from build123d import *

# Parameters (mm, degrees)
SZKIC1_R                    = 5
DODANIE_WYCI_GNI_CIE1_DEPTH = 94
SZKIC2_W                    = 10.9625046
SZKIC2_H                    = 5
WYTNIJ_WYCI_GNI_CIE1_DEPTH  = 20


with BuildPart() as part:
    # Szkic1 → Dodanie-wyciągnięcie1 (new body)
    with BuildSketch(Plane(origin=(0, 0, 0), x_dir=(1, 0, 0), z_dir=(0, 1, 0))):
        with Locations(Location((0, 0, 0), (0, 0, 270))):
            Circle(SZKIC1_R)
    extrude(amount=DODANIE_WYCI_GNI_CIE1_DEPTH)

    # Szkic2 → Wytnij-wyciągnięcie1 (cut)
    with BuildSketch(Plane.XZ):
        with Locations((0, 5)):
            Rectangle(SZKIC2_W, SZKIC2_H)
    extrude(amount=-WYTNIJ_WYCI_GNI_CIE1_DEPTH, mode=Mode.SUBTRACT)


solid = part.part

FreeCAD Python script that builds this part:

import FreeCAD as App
import Part
import Sketcher
from FreeCAD import Vector
Q = App.Units.Quantity

doc = App.newDocument("Part")
body = doc.addObject("PartDesign::Body", "Body")

sketch1 = body.newObject("Sketcher::SketchObject", "Sketch")
sketch1.AttachmentSupport = (doc.getObject("XZ_Plane"), [""])
sketch1.MapMode = "FlatFace"
sketch1.addGeometry(Part.Circle(Vector(0, 0, 0), Vector(0, 0, 1), 5), False)
sketch1.addConstraint([
    Sketcher.Constraint("Coincident", 0, 3, -1, 1),
    Sketcher.Constraint("Diameter", 0, Q("10 mm")),
])
pad1 = body.newObject("PartDesign::Pad", "Pad")
pad1.Profile = sketch1
pad1.Length = 94
pad1.Reversed = True

sketch2 = body.newObject("Sketcher::SketchObject", "Sketch001")
sketch2.AttachmentSupport = (doc.getObject("XZ_Plane"), [""])
sketch2.MapMode = "FlatFace"
sketch2.addGeometry([
    Part.LineSegment(Vector(-5, 8, 0), Vector(-5, 2, 0)),
    Part.LineSegment(Vector(-5, 2, 0), Vector(5, 2, 0)),
    Part.LineSegment(Vector(5, 2, 0), Vector(5, 8, 0)),
    Part.LineSegment(Vector(5, 8, 0), Vector(-5, 8, 0)),
], False)
sketch2.addConstraint([
    Sketcher.Constraint("Coincident", 0, 2, 1, 1),
    Sketcher.Constraint("Coincident", 1, 2, 2, 1),
    Sketcher.Constraint("Coincident", 2, 2, 3, 1),
    Sketcher.Constraint("Coincident", 3, 2, 0, 1),
    Sketcher.Constraint("Vertical", 0),
    Sketcher.Constraint("Horizontal", 1),
    Sketcher.Constraint("Vertical", 2),
    Sketcher.Constraint("Horizontal", 3),
    Sketcher.Constraint("DistanceY", 0, 2, 0, 1, Q("5 mm")),
    Sketcher.Constraint("DistanceY", -1, 1, 0, 2, Q("2.5 mm")),
    Sketcher.Constraint("DistanceX", 1, 1, 1, 2, Q("10.962505 mm")),
    Sketcher.Constraint("DistanceX", 0, 2, -1, 1, Q("5.481252 mm")),
])
pocket1 = body.newObject("PartDesign::Pocket", "Pocket")
pocket1.Profile = sketch2
pocket1.Length = 20

doc.recompute()
